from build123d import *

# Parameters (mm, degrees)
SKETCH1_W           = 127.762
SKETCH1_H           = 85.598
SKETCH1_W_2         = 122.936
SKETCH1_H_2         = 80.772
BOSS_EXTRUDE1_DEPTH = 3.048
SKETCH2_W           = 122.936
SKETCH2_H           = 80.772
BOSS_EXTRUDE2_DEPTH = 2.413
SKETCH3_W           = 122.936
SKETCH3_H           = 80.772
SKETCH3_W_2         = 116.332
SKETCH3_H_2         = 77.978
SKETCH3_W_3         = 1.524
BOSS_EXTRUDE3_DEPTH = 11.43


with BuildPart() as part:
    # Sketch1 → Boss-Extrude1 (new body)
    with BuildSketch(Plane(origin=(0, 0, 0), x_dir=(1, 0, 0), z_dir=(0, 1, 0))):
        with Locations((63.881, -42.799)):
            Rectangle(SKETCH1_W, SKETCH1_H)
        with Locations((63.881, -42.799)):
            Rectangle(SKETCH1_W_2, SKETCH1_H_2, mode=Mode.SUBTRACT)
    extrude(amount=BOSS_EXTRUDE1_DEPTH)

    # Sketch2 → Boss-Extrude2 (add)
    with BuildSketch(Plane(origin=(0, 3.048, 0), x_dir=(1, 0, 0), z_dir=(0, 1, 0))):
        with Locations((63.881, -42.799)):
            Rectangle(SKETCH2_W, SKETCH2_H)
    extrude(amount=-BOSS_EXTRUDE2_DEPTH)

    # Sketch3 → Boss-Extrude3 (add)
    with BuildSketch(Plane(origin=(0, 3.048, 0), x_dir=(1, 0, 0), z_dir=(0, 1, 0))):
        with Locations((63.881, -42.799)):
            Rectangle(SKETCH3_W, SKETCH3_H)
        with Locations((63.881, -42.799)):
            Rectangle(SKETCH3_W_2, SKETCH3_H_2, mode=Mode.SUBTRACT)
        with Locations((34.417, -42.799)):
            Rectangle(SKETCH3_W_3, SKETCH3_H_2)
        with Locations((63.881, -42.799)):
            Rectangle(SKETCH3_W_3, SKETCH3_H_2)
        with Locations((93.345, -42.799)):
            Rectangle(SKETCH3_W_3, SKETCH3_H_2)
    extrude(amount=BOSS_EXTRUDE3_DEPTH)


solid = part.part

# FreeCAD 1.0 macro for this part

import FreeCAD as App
import Part
import Sketcher

V = App.Vector
Q = App.Units.Quantity


def add_polygon(sketch, points):
    """Adds a closed chain of lines whose ends are joined by coincident constraints."""
    first, n = sketch.GeometryCount, len(points)
    for a, b in zip(points, points[1:] + points[:1]):
        sketch.addGeometry(Part.LineSegment(App.Vector(*a, 0), App.Vector(*b, 0)), False)
    for i in range(n):
        sketch.addConstraint(Sketcher.Constraint("Coincident", first + i, 2, first + (i + 1) % n, 1))

doc = App.newDocument("Part")
body = doc.addObject("PartDesign::Body", "Body")

sketch1 = body.newObject("Sketcher::SketchObject", "Sketch")
sketch1.AttachmentSupport = (doc.getObject("XZ_Plane"), [""])
sketch1.MapMode = "FlatFace"
add_polygon(sketch1, [(0, 0), (0, 86), (128, 86), (128, 0)])
add_polygon(sketch1, [(125, 83), (2, 83), (2, 2), (125, 2)])
sketch1.addConstraint([
    Sketcher.Constraint("Vertical", 0),
    Sketcher.Constraint("Horizontal", 1),
    Sketcher.Constraint("Vertical", 2),
    Sketcher.Constraint("Horizontal", 3),
    Sketcher.Constraint("Horizontal", 4),
    Sketcher.Constraint("Vertical", 5),
    Sketcher.Constraint("Horizontal", 6),
    Sketcher.Constraint("Vertical", 7),
    Sketcher.Constraint("Coincident", 3, 2, -1, 1),
    Sketcher.Constraint("DistanceX", 1, 1, 1, 2, Q("5.03 in")),
    Sketcher.Constraint("DistanceX", 4, 2, 4, 1, Q("4.84 in")),
    Sketcher.Constraint("DistanceY", 0, 1, 0, 2, Q("3.37 in")),
    Sketcher.Constraint("DistanceY", 5, 2, 5, 1, Q("3.18 in")),
    Sketcher.Constraint("DistanceX", -1, 1, 4, 2, Q("0.095 in")),
    Sketcher.Constraint("DistanceY", -1, 1, 4, 2, Q("3.275 in")),
])
pad1 = body.newObject("PartDesign::Pad", "Pad")
pad1.Profile = sketch1
pad1.Length = Q("0.12 in")
pad1.Reversed = True

sketch2 = body.newObject("Sketcher::SketchObject", "Sketch001")
sketch2.AttachmentSupport = (doc.getObject("XZ_Plane"), [""])
sketch2.MapMode = "FlatFace"
sketch2.AttachmentOffset = App.Placement(V(0, 0, -0.12 * 25.4), App.Rotation())
add_polygon(sketch2, [(2, 2), (2, 83), (125, 83), (125, 2)])
sketch2.addConstraint([
    Sketcher.Constraint("Vertical", 0),
    Sketcher.Constraint("Horizontal", 1),
    Sketcher.Constraint("Vertical", 2),
    Sketcher.Constraint("Horizontal", 3),
    Sketcher.Constraint("DistanceX", 1, 1, 1, 2, Q("4.84 in")),
    Sketcher.Constraint("DistanceY", 0, 1, 0, 2, Q("3.18 in")),
    Sketcher.Constraint("DistanceX", -1, 1, 0, 2, Q("0.095 in")),
    Sketcher.Constraint("DistanceY", -1, 1, 0, 2, Q("3.275 in")),
])
pad2 = body.newObject("PartDesign::Pad", "Pad001")
pad2.Profile = sketch2
pad2.Length = Q("0.095 in")

sketch3 = body.newObject("Sketcher::SketchObject", "Sketch002")
sketch3.AttachmentSupport = (doc.getObject("XZ_Plane"), [""])
sketch3.MapMode = "FlatFace"
sketch3.AttachmentOffset = App.Placement(V(0, 0, -0.12 * 25.4), App.Rotation())
add_polygon(sketch3, [(2, 2), (2, 83), (125, 83), (125, 2)])
add_polygon(sketch3, [(34, 82), (6, 82), (6, 4), (34, 4)])
add_polygon(sketch3, [(63, 82), (35, 82), (35, 4), (63, 4)])
add_polygon(sketch3, [(93, 82), (65, 82), (65, 4), (93, 4)])
add_polygon(sketch3, [(122, 82), (94, 82), (94, 4), (122, 4)])
sketch3.addConstraint([
    Sketcher.Constraint("Vertical", 0),
    Sketcher.Constraint("Horizontal", 1),
    Sketcher.Constraint("Vertical", 2),
    Sketcher.Constraint("Horizontal", 3),
    Sketcher.Constraint("Horizontal", 4),
    Sketcher.Constraint("Vertical", 5),
    Sketcher.Constraint("Horizontal", 6),
    Sketcher.Constraint("Vertical", 7),
    Sketcher.Constraint("Horizontal", 8),
    Sketcher.Constraint("Vertical", 9),
    Sketcher.Constraint("Horizontal", 10),
    Sketcher.Constraint("Vertical", 11),
    Sketcher.Constraint("Horizontal", 12),
    Sketcher.Constraint("Vertical", 13),
    Sketcher.Constraint("Horizontal", 14),
    Sketcher.Constraint("Vertical", 15),
    Sketcher.Constraint("Horizontal", 16),
    Sketcher.Constraint("Vertical", 17),
    Sketcher.Constraint("Horizontal", 18),
    Sketcher.Constraint("Vertical", 19),
    Sketcher.Constraint("Horizontal", 7, 2, 8, 2),
    Sketcher.Constraint("Horizontal", 6, 2, 9, 2),
    Sketcher.Constraint("Horizontal", 11, 2, 12, 2),
    Sketcher.Constraint("Horizontal", 10, 2, 13, 2),
    Sketcher.Constraint("Horizontal", 15, 2, 16, 2),
    Sketcher.Constraint("Horizontal", 14, 2, 17, 2),
    Sketcher.Constraint("Equal", 6, 8),
    Sketcher.Constraint("Equal", 10, 12),
    Sketcher.Constraint("Equal", 14, 16),
    Sketcher.Constraint("DistanceX", 4, 2, 4, 1, Q("1.1 in")),
    Sketcher.Constraint("DistanceX", 1, 1, 1, 2, Q("4.84 in")),
    Sketcher.Constraint("DistanceY", 0, 1, 0, 2, Q("3.18 in")),
    Sketcher.Constraint("DistanceY", 5, 2, 5, 1, Q("3.07 in")),
    Sketcher.Constraint("DistanceY", -1, 1, 4, 2, Q("3.22 in")),
    Sketcher.Constraint("DistanceX", 0, 2, 4, 2, Q("0.13 in")),
    Sketcher.Constraint("DistanceX", 7, 2, 8, 2, Q("0.06 in")),
    Sketcher.Constraint("DistanceX", 11, 2, 12, 2, Q("0.06 in")),
    Sketcher.Constraint("DistanceX", 15, 2, 16, 2, Q("0.06 in")),
    Sketcher.Constraint("DistanceX", -1, 1, 0, 2, Q("0.095 in")),
    Sketcher.Constraint("DistanceY", -1, 1, 0, 2, Q("3.275 in")),
])
pad3 = body.newObject("PartDesign::Pad", "Pad002")
pad3.Profile = sketch3
pad3.Length = Q("0.45 in")
pad3.Reversed = True

doc.recompute()
